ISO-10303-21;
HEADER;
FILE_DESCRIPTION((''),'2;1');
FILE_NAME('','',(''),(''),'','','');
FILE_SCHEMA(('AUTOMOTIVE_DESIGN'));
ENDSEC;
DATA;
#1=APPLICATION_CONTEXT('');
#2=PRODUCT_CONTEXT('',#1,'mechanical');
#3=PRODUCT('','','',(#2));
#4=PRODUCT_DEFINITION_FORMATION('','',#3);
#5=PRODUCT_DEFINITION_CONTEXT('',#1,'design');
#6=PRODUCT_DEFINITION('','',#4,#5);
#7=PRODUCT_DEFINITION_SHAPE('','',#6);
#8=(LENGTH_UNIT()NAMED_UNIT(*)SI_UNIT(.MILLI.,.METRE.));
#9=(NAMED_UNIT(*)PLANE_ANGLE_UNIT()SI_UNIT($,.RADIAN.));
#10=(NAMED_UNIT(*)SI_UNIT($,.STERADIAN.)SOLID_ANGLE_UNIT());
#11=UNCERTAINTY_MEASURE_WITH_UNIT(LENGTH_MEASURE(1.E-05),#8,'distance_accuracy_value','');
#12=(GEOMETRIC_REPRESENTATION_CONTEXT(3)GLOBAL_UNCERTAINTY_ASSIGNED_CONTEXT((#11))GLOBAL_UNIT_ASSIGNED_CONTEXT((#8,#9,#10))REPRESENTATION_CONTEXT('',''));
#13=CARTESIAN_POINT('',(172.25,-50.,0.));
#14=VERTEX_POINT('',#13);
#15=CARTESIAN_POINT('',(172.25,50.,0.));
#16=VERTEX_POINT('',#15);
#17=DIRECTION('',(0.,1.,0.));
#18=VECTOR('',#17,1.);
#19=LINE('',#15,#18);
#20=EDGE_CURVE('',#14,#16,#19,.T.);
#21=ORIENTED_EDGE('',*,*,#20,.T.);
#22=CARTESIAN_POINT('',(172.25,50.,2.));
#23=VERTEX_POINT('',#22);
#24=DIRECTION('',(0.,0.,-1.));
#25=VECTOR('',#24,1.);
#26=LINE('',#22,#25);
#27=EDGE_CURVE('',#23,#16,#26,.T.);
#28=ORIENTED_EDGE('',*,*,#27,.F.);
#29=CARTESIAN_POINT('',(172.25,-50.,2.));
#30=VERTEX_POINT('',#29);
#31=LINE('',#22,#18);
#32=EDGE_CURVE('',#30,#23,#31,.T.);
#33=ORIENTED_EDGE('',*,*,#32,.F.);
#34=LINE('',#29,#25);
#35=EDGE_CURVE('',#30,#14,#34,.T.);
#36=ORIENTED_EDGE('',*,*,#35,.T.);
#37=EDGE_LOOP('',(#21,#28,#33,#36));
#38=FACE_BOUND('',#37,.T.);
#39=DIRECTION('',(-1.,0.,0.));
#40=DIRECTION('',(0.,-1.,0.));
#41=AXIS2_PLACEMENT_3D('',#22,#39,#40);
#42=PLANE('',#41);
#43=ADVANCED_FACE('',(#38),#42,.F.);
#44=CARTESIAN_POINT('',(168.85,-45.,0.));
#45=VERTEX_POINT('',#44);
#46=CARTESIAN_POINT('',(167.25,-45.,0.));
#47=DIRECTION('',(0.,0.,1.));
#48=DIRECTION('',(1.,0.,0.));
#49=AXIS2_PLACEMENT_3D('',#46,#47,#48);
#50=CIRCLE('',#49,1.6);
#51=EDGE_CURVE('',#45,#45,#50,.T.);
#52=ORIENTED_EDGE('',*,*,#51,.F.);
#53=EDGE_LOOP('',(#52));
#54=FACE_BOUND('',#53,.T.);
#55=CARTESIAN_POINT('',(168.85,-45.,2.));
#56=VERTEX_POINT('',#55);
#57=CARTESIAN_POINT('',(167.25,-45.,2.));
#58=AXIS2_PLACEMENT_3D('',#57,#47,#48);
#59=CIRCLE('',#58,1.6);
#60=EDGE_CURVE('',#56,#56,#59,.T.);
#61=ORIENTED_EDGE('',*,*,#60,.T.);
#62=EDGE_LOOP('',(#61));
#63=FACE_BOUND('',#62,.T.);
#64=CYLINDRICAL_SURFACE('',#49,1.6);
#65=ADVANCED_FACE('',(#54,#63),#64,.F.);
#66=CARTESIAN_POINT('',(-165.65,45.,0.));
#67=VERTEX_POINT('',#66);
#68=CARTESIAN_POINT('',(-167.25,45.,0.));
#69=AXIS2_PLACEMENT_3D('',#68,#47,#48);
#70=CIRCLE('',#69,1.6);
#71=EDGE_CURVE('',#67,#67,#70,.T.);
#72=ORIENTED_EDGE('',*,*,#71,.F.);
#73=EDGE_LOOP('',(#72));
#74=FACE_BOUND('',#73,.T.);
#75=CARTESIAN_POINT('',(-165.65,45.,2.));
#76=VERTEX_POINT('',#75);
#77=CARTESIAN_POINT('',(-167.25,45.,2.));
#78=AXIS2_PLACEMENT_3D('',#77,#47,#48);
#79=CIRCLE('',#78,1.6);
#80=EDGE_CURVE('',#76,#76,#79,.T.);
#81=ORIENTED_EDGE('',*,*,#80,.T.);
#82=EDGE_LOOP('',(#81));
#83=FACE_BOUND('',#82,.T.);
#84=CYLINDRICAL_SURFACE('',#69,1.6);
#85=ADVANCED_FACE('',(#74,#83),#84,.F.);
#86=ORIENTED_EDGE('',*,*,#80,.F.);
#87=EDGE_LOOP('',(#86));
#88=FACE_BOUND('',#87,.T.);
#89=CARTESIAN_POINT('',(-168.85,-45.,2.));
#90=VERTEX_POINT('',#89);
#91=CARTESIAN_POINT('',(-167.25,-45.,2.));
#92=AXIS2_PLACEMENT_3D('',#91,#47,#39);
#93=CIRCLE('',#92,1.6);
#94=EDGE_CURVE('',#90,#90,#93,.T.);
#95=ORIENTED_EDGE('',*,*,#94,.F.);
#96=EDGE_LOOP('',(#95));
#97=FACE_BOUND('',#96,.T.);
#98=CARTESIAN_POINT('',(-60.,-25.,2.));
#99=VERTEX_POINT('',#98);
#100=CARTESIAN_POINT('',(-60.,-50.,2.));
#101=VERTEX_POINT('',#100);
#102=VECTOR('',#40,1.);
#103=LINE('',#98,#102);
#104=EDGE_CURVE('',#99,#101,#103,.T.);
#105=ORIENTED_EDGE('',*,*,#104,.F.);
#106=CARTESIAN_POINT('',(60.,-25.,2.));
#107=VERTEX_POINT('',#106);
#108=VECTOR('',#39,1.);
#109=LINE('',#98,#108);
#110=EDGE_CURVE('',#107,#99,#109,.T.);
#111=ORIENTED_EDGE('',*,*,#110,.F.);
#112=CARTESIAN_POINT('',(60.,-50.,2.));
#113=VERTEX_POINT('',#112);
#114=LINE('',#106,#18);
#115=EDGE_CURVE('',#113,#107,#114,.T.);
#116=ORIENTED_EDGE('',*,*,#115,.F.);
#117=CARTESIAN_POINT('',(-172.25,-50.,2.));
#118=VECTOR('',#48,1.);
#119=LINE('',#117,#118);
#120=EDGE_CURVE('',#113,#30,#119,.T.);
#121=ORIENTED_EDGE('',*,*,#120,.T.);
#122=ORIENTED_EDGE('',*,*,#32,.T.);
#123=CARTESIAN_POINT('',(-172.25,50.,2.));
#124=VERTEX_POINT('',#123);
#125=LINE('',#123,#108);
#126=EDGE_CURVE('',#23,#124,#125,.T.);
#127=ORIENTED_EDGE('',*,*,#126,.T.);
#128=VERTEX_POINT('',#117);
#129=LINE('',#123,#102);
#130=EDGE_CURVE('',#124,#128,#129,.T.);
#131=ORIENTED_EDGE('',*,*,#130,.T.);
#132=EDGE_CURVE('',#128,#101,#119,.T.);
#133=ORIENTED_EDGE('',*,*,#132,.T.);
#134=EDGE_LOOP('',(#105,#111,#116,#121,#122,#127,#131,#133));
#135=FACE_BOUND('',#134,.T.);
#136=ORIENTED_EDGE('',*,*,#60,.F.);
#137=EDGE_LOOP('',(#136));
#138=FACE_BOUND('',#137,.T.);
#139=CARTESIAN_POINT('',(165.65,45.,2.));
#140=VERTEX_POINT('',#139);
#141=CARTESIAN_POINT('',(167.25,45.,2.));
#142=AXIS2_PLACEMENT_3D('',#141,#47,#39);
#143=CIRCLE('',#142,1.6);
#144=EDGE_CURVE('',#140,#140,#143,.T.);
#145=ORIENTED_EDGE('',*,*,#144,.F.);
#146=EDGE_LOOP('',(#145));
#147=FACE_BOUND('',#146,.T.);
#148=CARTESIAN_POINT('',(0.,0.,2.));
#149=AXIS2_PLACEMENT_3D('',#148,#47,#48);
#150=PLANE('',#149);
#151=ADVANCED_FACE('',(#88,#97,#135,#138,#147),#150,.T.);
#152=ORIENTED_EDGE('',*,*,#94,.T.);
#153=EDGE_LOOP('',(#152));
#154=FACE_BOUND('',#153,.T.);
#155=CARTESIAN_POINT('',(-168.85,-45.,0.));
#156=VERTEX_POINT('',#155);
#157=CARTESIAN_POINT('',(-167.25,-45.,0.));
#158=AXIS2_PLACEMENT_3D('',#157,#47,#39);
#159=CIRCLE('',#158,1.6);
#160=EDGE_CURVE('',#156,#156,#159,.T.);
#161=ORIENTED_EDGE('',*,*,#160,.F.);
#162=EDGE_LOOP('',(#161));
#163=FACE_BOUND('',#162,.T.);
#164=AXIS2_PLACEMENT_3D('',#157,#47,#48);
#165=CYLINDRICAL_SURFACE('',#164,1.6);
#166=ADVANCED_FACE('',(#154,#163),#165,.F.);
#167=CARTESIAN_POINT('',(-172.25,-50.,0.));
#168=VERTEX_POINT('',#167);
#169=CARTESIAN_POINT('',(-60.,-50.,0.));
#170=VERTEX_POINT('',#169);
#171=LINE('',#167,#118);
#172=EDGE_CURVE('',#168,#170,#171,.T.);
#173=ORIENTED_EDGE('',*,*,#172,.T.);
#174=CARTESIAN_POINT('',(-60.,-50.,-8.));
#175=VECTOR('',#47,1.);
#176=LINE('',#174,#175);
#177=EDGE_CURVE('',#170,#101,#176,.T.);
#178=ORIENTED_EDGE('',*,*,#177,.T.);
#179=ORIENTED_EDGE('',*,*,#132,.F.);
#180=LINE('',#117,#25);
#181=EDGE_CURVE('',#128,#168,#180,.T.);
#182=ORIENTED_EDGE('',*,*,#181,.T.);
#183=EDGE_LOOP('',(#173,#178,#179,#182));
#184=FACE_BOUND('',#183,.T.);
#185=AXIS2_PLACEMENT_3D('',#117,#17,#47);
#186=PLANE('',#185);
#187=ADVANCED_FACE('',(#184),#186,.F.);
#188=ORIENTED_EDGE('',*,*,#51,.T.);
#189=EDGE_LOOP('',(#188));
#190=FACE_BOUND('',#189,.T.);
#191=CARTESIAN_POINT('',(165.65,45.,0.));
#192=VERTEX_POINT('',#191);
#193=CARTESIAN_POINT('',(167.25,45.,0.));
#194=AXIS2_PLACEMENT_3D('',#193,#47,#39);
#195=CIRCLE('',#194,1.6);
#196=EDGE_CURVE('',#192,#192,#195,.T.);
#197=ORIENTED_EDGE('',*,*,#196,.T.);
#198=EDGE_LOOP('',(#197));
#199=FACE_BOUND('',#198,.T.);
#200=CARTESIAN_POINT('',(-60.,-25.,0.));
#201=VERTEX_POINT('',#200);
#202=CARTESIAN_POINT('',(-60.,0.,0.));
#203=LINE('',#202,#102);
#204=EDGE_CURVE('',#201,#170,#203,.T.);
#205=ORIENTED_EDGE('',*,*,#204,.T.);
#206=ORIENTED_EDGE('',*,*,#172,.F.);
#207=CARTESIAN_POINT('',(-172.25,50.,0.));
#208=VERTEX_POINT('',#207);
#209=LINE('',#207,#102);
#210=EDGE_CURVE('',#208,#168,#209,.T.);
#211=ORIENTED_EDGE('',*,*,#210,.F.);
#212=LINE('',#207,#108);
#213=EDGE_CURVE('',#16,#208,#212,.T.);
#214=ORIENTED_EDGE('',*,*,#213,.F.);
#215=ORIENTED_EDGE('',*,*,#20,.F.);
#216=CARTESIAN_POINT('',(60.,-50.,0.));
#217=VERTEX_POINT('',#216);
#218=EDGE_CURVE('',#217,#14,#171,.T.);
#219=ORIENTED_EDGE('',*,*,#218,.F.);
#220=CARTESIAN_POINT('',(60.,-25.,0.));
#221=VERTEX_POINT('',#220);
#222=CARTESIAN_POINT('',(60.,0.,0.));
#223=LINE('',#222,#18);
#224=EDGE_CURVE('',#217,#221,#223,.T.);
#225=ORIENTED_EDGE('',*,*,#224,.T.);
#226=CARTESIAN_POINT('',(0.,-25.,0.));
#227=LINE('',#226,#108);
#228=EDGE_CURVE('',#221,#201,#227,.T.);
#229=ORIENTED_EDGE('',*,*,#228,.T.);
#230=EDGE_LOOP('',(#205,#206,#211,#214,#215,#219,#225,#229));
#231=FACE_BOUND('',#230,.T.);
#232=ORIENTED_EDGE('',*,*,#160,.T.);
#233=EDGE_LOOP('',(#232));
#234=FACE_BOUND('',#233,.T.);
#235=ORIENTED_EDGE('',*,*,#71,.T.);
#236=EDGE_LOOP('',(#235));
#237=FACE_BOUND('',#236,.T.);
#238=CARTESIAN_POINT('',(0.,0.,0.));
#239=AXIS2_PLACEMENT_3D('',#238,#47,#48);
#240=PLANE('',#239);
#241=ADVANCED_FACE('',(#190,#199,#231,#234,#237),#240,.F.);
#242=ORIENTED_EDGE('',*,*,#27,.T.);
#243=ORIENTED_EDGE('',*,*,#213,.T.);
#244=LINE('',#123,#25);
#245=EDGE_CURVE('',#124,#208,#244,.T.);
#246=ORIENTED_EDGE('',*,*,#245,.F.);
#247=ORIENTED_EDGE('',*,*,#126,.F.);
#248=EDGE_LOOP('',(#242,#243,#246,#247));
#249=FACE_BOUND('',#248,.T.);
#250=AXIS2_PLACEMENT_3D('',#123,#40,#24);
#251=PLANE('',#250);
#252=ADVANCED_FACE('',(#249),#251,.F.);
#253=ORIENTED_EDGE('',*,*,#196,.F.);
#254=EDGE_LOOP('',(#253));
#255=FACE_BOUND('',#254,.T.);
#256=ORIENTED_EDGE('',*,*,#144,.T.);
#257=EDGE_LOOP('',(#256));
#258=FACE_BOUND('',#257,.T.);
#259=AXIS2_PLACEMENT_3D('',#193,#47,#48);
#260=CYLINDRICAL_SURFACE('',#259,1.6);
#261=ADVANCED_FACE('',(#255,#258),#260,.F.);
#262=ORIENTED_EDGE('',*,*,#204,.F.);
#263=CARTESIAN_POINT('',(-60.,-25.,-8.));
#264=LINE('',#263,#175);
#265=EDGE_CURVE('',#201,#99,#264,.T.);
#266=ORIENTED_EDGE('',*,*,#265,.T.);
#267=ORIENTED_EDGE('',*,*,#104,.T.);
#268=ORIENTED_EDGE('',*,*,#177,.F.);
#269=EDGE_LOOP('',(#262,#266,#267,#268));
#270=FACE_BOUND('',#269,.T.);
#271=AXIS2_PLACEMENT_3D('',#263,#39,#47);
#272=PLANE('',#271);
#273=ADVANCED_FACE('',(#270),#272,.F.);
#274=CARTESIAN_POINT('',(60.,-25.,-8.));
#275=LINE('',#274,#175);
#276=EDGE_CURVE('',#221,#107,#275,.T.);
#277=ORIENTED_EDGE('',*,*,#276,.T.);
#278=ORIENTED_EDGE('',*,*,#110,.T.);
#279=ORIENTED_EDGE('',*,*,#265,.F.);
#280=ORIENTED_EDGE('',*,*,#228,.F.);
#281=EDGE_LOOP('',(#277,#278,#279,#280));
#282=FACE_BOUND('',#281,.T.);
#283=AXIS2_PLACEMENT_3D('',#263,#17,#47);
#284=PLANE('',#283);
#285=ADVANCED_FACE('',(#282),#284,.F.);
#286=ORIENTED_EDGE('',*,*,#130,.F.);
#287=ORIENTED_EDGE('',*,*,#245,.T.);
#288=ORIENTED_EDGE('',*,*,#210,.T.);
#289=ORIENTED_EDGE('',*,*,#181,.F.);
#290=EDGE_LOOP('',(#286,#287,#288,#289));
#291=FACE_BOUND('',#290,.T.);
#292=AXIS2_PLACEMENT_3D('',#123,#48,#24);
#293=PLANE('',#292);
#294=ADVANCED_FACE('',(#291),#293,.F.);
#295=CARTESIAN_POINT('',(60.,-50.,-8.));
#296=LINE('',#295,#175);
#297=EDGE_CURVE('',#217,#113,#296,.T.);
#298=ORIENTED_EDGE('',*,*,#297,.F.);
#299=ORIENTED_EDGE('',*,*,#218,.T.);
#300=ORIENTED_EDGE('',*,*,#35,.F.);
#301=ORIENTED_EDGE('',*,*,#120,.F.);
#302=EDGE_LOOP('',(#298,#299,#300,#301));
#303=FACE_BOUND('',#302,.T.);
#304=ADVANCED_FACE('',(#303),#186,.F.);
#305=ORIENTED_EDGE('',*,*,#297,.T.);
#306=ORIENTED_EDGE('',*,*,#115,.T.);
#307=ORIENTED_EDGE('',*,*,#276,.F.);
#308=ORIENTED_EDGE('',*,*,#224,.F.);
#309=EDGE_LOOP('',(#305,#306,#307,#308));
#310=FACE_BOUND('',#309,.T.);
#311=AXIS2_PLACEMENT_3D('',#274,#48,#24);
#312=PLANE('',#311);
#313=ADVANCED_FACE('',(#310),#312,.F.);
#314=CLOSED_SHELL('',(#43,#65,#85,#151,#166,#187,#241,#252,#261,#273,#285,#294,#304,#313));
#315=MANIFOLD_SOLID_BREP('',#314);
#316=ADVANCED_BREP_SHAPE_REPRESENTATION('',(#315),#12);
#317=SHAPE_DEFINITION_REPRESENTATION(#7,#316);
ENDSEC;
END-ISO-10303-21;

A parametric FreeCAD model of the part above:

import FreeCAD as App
import Part
import Sketcher
Q = App.Units.Quantity


def add_polygon(sketch, points):
    """Adds a closed chain of lines whose ends are joined by coincident constraints."""
    first, n = sketch.GeometryCount, len(points)
    for a, b in zip(points, points[1:] + points[:1]):
        sketch.addGeometry(Part.LineSegment(App.Vector(*a, 0), App.Vector(*b, 0)), False)
    for i in range(n):
        sketch.addConstraint(Sketcher.Constraint("Coincident", first + i, 2, first + (i + 1) % n, 1))

doc = App.newDocument("Part")
params = doc.addObject("Spreadsheet::Sheet", "Params")
for row, (alias, value) in enumerate([
    ("sketch1_height", "100 mm"),
    ("sketch1_width", "344.5 mm"),
    ("pad1_length", "2 mm"),
    ("sketch2_diameter", "3.2 mm"),
    ("pocket1_length", "2 mm"),
    ("sketch3_width", "120 mm"),
    ("sketch3_height", "25 mm"),
    ("pocket2_length", "10 mm"),
], start=1):
    params.set(f"A{row}", alias)
    params.set(f"B{row}", "=" + value)
    params.setAlias(f"B{row}", alias)

body = doc.addObject("PartDesign::Body", "Body")

# Sketch on XY plane
sketch1 = body.newObject("Sketcher::SketchObject", "Sketch")
sketch1.AttachmentSupport = (doc.getObject("XY_Plane"), [""])
sketch1.MapMode = "FlatFace"
add_polygon(sketch1, [(-172, 50), (-172, -50), (172, -50), (172, 50)])  # lines 0-3
sketch1.addConstraint([
    Sketcher.Constraint("Vertical", 0),
    Sketcher.Constraint("Horizontal", 1),
    Sketcher.Constraint("Vertical", 2),
    Sketcher.Constraint("Horizontal", 3),
    Sketcher.Constraint("Symmetric", 0, 2, 2, 2, -1, 1),
    Sketcher.Constraint("DistanceY", 0, 2, 0, 1, Q("100 mm")),
    Sketcher.Constraint("DistanceX", 1, 1, 1, 2, Q("344.5 mm")),
])
sketch1.setExpression("Constraints[9]", "Params.sketch1_height")
sketch1.setExpression("Constraints[10]", "Params.sketch1_width")
pad1 = body.newObject("PartDesign::Pad", "Pad")
pad1.Profile = sketch1
pad1.setExpression("Length", "Params.pad1_length")

# Sketch on XY plane
sketch2 = body.newObject("Sketcher::SketchObject", "Sketch001")
sketch2.AttachmentSupport = (doc.getObject("XY_Plane"), [""])
sketch2.MapMode = "FlatFace"
sketch2.AttachmentOffset = App.Placement(App.Vector(0, 0, 2), App.Rotation())
sketch2.addGeometry([
    Part.Circle(App.Vector(167.2, -45, 0), App.Vector(0, 0, 1), 1.6),
    Part.Circle(App.Vector(167.2, 45, 0), App.Vector(0, 0, 1), 1.6),
    Part.Circle(App.Vector(-167.2, -45, 0), App.Vector(0, 0, 1), 1.6),
    Part.Circle(App.Vector(-167.2, 45, 0), App.Vector(0, 0, 1), 1.6),
], False)
sketch2.addConstraint([
    Sketcher.Constraint("Equal", 0, 1),
    Sketcher.Constraint("Equal", 1, 2),
    Sketcher.Constraint("Equal", 2, 3),
    Sketcher.Constraint("Symmetric", 1, 3, 2, 3, -1, 1),
    Sketcher.Constraint("Symmetric", 0, 3, 3, 3, -1, 1),
    Sketcher.Constraint("Symmetric", 0, 3, 2, 3, -2),
    Sketcher.Constraint("Diameter", 0, Q("3.2 mm")),
    Sketcher.Constraint("DistanceY", 0, 3, -1, 1, Q("45 mm")),
    Sketcher.Constraint("DistanceX", 2, 3, 0, 3, Q("334.5 mm")),
])
sketch2.setExpression("Constraints[6]", "Params.sketch2_diameter")
pocket1 = body.newObject("PartDesign::Pocket", "Pocket")
pocket1.Profile = sketch2
pocket1.setExpression("Length", "Params.pocket1_length")

# Sketch on XY plane
sketch3 = body.newObject("Sketcher::SketchObject", "Sketch002")
sketch3.AttachmentSupport = (doc.getObject("XY_Plane"), [""])
sketch3.MapMode = "FlatFace"
sketch3.AttachmentOffset = App.Placement(App.Vector(0, 0, 2), App.Rotation())
add_polygon(sketch3, [(-60, -25), (-60, -50), (60, -50), (60, -25)])  # lines 0-3
sketch3.addConstraint([
    Sketcher.Constraint("Vertical", 0),
    Sketcher.Constraint("Horizontal", 1),
    Sketcher.Constraint("Vertical", 2),
    Sketcher.Constraint("Horizontal", 3),
    Sketcher.Constraint("DistanceX", 1, 1, 1, 2, Q("120 mm")),
    Sketcher.Constraint("DistanceY", 0, 2, 0, 1, Q("25 mm")),
    Sketcher.Constraint("DistanceX", 0, 2, -1, 1, Q("60 mm")),
    Sketcher.Constraint("DistanceY", 0, 2, -1, 1, Q("50 mm")),
])
sketch3.setExpression("Constraints[8]", "Params.sketch3_width")
sketch3.setExpression("Constraints[9]", "Params.sketch3_height")
pocket2 = body.newObject("PartDesign::Pocket", "Pocket001")
pocket2.Profile = sketch3
pocket2.setExpression("Length", "Params.pocket2_length")

doc.recompute()
